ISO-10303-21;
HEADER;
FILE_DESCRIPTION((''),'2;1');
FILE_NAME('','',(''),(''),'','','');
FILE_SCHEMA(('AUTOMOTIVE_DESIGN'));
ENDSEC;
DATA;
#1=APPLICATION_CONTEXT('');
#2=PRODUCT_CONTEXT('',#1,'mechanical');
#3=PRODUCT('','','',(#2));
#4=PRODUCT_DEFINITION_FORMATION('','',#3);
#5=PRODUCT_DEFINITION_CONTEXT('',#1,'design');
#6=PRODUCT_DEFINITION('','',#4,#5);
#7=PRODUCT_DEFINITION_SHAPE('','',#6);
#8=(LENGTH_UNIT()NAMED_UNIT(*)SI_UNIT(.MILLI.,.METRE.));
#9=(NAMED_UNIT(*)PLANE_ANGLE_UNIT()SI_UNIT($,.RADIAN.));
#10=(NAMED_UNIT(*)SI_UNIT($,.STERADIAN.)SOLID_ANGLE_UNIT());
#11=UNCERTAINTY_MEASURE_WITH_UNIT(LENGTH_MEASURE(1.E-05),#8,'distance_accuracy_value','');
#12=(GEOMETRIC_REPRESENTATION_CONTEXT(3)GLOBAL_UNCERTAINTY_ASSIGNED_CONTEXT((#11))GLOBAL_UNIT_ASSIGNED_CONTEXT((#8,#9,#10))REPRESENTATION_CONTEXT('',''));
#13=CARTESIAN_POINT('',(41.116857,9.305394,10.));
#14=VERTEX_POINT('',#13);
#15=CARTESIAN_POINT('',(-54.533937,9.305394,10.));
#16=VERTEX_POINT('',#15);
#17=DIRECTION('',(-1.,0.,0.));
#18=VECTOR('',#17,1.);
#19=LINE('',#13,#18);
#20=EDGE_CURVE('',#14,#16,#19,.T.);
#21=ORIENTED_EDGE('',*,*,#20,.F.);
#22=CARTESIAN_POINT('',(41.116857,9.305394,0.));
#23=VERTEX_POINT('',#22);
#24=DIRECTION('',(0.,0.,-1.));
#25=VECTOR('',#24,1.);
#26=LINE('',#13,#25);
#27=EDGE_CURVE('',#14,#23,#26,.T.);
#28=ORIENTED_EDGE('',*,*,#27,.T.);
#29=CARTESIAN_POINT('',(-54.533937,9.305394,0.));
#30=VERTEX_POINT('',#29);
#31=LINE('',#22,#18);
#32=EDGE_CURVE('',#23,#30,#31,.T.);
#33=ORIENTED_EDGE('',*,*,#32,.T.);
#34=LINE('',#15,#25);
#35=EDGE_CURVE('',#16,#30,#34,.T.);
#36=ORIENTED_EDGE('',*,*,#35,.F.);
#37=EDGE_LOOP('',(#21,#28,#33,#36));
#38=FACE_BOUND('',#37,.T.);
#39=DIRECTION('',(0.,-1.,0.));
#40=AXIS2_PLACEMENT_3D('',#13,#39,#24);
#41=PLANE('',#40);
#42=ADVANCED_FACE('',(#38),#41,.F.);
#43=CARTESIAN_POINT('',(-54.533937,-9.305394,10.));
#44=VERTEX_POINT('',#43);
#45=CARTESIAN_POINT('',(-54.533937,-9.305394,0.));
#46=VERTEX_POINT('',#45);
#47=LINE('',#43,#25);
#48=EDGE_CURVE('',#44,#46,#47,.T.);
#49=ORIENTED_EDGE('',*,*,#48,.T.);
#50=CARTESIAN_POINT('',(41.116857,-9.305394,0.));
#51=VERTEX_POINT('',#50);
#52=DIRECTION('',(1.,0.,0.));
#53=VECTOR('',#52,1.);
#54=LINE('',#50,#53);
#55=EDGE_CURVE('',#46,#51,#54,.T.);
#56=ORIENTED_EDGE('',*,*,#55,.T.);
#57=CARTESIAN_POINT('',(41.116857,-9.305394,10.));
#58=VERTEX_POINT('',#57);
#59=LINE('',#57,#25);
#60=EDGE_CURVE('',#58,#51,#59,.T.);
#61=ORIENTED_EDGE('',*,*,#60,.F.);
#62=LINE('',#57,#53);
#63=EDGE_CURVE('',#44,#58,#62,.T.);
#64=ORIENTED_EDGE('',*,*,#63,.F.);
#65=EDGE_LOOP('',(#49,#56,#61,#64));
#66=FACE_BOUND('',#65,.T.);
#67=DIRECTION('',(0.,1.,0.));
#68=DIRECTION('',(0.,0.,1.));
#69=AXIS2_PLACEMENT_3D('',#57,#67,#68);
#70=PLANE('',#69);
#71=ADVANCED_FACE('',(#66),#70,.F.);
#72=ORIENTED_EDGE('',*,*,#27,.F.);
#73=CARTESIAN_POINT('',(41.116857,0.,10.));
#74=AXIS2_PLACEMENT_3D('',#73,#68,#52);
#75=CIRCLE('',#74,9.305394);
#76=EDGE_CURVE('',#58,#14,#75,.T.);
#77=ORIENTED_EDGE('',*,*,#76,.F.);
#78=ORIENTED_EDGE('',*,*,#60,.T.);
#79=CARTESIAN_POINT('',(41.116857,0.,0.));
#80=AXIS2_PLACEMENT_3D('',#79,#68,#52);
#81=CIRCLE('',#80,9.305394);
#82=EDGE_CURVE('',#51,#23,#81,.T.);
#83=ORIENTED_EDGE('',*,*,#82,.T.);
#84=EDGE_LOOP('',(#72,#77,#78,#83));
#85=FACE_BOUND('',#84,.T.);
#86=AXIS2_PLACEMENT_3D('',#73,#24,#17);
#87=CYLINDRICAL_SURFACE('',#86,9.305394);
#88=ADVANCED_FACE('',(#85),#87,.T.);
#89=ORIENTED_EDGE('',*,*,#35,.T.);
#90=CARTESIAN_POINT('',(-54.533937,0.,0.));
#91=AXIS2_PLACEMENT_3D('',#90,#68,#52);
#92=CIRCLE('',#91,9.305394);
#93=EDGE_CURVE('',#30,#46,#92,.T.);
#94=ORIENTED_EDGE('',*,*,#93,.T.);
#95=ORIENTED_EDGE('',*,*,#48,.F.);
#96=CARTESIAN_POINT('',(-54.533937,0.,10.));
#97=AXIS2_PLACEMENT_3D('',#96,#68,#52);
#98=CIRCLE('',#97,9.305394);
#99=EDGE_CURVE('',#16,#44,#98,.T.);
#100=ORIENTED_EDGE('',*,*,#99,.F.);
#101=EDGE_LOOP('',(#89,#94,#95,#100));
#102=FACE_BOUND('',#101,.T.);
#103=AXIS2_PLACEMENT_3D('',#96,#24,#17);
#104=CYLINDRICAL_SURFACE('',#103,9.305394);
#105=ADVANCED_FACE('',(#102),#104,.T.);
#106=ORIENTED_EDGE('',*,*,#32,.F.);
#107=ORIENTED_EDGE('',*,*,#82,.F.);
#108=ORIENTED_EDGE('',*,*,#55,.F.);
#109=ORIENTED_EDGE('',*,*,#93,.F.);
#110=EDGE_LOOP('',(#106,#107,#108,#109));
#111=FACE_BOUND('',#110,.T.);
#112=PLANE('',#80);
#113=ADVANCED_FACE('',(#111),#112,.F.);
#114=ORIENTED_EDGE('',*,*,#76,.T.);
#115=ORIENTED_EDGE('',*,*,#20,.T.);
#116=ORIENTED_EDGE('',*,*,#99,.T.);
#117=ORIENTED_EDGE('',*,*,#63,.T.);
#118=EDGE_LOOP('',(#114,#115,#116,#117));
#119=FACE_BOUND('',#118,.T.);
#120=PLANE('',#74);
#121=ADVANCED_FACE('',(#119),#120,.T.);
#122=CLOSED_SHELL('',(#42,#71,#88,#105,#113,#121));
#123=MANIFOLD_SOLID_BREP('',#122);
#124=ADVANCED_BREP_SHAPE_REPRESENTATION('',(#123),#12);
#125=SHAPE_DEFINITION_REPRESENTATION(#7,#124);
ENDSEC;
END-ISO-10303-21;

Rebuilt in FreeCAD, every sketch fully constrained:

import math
import FreeCAD as App
import Part
import Sketcher
Q = App.Units.Quantity

doc = App.newDocument("Part")
params = doc.addObject("Spreadsheet::Sheet", "Params")
for row, (alias, value) in enumerate([
    ("pad1_length", "10 mm"),
], start=1):
    params.set(f"A{row}", alias)
    params.set(f"B{row}", "=" + value)
    params.setAlias(f"B{row}", alias)

body = doc.addObject("PartDesign::Body", "Body")

sketch1 = body.newObject("Sketcher::SketchObject", "Sketch")
sketch1.AttachmentSupport = (doc.getObject("XY_Plane"), [""])
sketch1.MapMode = "FlatFace"
sketch1.addGeometry(Part.LineSegment(App.Vector(-55, -9, 0), App.Vector(41, -9, 0)), False)
sketch1.addGeometry(Part.ArcOfCircle(Part.Circle(App.Vector(41, 0, 0), App.Vector(0, 0, 1), 9), math.radians(-90), math.radians(90)), False)
sketch1.addGeometry(Part.LineSegment(App.Vector(41, 9, 0), App.Vector(-55, 9, 0)), False)
sketch1.addGeometry(Part.ArcOfCircle(Part.Circle(App.Vector(-55, 0, 0), App.Vector(0, 0, 1), 9), math.radians(90), math.radians(270)), False)
sketch1.addConstraint(Sketcher.Constraint("Tangent", 0, 2, 1, 1))
sketch1.addConstraint(Sketcher.Constraint("Tangent", 1, 2, 2, 1))
sketch1.addConstraint(Sketcher.Constraint("Tangent", 2, 2, 3, 1))
sketch1.addConstraint(Sketcher.Constraint("Tangent", 3, 2, 0, 1))
sketch1.addConstraint(Sketcher.Constraint("Horizontal", 0))
sketch1.addConstraint(Sketcher.Constraint("Horizontal", 2))
sketch1.addConstraint(Sketcher.Constraint("PointOnObject", 1, 3, -1))
sketch1.addConstraint(Sketcher.Constraint("Radius", 1, Q("9.305394 mm")))
sketch1.addConstraint(Sketcher.Constraint("DistanceX", 0, 1, 0, 2, Q("95.650794 mm")))
sketch1.addConstraint(Sketcher.Constraint("DistanceX", -1, 1, 1, 3, Q("41.116857 mm")))
pad1 = body.newObject("PartDesign::Pad", "Pad")
pad1.Profile = sketch1
pad1.setExpression("Length", "Params.pad1_length")

doc.recompute()
